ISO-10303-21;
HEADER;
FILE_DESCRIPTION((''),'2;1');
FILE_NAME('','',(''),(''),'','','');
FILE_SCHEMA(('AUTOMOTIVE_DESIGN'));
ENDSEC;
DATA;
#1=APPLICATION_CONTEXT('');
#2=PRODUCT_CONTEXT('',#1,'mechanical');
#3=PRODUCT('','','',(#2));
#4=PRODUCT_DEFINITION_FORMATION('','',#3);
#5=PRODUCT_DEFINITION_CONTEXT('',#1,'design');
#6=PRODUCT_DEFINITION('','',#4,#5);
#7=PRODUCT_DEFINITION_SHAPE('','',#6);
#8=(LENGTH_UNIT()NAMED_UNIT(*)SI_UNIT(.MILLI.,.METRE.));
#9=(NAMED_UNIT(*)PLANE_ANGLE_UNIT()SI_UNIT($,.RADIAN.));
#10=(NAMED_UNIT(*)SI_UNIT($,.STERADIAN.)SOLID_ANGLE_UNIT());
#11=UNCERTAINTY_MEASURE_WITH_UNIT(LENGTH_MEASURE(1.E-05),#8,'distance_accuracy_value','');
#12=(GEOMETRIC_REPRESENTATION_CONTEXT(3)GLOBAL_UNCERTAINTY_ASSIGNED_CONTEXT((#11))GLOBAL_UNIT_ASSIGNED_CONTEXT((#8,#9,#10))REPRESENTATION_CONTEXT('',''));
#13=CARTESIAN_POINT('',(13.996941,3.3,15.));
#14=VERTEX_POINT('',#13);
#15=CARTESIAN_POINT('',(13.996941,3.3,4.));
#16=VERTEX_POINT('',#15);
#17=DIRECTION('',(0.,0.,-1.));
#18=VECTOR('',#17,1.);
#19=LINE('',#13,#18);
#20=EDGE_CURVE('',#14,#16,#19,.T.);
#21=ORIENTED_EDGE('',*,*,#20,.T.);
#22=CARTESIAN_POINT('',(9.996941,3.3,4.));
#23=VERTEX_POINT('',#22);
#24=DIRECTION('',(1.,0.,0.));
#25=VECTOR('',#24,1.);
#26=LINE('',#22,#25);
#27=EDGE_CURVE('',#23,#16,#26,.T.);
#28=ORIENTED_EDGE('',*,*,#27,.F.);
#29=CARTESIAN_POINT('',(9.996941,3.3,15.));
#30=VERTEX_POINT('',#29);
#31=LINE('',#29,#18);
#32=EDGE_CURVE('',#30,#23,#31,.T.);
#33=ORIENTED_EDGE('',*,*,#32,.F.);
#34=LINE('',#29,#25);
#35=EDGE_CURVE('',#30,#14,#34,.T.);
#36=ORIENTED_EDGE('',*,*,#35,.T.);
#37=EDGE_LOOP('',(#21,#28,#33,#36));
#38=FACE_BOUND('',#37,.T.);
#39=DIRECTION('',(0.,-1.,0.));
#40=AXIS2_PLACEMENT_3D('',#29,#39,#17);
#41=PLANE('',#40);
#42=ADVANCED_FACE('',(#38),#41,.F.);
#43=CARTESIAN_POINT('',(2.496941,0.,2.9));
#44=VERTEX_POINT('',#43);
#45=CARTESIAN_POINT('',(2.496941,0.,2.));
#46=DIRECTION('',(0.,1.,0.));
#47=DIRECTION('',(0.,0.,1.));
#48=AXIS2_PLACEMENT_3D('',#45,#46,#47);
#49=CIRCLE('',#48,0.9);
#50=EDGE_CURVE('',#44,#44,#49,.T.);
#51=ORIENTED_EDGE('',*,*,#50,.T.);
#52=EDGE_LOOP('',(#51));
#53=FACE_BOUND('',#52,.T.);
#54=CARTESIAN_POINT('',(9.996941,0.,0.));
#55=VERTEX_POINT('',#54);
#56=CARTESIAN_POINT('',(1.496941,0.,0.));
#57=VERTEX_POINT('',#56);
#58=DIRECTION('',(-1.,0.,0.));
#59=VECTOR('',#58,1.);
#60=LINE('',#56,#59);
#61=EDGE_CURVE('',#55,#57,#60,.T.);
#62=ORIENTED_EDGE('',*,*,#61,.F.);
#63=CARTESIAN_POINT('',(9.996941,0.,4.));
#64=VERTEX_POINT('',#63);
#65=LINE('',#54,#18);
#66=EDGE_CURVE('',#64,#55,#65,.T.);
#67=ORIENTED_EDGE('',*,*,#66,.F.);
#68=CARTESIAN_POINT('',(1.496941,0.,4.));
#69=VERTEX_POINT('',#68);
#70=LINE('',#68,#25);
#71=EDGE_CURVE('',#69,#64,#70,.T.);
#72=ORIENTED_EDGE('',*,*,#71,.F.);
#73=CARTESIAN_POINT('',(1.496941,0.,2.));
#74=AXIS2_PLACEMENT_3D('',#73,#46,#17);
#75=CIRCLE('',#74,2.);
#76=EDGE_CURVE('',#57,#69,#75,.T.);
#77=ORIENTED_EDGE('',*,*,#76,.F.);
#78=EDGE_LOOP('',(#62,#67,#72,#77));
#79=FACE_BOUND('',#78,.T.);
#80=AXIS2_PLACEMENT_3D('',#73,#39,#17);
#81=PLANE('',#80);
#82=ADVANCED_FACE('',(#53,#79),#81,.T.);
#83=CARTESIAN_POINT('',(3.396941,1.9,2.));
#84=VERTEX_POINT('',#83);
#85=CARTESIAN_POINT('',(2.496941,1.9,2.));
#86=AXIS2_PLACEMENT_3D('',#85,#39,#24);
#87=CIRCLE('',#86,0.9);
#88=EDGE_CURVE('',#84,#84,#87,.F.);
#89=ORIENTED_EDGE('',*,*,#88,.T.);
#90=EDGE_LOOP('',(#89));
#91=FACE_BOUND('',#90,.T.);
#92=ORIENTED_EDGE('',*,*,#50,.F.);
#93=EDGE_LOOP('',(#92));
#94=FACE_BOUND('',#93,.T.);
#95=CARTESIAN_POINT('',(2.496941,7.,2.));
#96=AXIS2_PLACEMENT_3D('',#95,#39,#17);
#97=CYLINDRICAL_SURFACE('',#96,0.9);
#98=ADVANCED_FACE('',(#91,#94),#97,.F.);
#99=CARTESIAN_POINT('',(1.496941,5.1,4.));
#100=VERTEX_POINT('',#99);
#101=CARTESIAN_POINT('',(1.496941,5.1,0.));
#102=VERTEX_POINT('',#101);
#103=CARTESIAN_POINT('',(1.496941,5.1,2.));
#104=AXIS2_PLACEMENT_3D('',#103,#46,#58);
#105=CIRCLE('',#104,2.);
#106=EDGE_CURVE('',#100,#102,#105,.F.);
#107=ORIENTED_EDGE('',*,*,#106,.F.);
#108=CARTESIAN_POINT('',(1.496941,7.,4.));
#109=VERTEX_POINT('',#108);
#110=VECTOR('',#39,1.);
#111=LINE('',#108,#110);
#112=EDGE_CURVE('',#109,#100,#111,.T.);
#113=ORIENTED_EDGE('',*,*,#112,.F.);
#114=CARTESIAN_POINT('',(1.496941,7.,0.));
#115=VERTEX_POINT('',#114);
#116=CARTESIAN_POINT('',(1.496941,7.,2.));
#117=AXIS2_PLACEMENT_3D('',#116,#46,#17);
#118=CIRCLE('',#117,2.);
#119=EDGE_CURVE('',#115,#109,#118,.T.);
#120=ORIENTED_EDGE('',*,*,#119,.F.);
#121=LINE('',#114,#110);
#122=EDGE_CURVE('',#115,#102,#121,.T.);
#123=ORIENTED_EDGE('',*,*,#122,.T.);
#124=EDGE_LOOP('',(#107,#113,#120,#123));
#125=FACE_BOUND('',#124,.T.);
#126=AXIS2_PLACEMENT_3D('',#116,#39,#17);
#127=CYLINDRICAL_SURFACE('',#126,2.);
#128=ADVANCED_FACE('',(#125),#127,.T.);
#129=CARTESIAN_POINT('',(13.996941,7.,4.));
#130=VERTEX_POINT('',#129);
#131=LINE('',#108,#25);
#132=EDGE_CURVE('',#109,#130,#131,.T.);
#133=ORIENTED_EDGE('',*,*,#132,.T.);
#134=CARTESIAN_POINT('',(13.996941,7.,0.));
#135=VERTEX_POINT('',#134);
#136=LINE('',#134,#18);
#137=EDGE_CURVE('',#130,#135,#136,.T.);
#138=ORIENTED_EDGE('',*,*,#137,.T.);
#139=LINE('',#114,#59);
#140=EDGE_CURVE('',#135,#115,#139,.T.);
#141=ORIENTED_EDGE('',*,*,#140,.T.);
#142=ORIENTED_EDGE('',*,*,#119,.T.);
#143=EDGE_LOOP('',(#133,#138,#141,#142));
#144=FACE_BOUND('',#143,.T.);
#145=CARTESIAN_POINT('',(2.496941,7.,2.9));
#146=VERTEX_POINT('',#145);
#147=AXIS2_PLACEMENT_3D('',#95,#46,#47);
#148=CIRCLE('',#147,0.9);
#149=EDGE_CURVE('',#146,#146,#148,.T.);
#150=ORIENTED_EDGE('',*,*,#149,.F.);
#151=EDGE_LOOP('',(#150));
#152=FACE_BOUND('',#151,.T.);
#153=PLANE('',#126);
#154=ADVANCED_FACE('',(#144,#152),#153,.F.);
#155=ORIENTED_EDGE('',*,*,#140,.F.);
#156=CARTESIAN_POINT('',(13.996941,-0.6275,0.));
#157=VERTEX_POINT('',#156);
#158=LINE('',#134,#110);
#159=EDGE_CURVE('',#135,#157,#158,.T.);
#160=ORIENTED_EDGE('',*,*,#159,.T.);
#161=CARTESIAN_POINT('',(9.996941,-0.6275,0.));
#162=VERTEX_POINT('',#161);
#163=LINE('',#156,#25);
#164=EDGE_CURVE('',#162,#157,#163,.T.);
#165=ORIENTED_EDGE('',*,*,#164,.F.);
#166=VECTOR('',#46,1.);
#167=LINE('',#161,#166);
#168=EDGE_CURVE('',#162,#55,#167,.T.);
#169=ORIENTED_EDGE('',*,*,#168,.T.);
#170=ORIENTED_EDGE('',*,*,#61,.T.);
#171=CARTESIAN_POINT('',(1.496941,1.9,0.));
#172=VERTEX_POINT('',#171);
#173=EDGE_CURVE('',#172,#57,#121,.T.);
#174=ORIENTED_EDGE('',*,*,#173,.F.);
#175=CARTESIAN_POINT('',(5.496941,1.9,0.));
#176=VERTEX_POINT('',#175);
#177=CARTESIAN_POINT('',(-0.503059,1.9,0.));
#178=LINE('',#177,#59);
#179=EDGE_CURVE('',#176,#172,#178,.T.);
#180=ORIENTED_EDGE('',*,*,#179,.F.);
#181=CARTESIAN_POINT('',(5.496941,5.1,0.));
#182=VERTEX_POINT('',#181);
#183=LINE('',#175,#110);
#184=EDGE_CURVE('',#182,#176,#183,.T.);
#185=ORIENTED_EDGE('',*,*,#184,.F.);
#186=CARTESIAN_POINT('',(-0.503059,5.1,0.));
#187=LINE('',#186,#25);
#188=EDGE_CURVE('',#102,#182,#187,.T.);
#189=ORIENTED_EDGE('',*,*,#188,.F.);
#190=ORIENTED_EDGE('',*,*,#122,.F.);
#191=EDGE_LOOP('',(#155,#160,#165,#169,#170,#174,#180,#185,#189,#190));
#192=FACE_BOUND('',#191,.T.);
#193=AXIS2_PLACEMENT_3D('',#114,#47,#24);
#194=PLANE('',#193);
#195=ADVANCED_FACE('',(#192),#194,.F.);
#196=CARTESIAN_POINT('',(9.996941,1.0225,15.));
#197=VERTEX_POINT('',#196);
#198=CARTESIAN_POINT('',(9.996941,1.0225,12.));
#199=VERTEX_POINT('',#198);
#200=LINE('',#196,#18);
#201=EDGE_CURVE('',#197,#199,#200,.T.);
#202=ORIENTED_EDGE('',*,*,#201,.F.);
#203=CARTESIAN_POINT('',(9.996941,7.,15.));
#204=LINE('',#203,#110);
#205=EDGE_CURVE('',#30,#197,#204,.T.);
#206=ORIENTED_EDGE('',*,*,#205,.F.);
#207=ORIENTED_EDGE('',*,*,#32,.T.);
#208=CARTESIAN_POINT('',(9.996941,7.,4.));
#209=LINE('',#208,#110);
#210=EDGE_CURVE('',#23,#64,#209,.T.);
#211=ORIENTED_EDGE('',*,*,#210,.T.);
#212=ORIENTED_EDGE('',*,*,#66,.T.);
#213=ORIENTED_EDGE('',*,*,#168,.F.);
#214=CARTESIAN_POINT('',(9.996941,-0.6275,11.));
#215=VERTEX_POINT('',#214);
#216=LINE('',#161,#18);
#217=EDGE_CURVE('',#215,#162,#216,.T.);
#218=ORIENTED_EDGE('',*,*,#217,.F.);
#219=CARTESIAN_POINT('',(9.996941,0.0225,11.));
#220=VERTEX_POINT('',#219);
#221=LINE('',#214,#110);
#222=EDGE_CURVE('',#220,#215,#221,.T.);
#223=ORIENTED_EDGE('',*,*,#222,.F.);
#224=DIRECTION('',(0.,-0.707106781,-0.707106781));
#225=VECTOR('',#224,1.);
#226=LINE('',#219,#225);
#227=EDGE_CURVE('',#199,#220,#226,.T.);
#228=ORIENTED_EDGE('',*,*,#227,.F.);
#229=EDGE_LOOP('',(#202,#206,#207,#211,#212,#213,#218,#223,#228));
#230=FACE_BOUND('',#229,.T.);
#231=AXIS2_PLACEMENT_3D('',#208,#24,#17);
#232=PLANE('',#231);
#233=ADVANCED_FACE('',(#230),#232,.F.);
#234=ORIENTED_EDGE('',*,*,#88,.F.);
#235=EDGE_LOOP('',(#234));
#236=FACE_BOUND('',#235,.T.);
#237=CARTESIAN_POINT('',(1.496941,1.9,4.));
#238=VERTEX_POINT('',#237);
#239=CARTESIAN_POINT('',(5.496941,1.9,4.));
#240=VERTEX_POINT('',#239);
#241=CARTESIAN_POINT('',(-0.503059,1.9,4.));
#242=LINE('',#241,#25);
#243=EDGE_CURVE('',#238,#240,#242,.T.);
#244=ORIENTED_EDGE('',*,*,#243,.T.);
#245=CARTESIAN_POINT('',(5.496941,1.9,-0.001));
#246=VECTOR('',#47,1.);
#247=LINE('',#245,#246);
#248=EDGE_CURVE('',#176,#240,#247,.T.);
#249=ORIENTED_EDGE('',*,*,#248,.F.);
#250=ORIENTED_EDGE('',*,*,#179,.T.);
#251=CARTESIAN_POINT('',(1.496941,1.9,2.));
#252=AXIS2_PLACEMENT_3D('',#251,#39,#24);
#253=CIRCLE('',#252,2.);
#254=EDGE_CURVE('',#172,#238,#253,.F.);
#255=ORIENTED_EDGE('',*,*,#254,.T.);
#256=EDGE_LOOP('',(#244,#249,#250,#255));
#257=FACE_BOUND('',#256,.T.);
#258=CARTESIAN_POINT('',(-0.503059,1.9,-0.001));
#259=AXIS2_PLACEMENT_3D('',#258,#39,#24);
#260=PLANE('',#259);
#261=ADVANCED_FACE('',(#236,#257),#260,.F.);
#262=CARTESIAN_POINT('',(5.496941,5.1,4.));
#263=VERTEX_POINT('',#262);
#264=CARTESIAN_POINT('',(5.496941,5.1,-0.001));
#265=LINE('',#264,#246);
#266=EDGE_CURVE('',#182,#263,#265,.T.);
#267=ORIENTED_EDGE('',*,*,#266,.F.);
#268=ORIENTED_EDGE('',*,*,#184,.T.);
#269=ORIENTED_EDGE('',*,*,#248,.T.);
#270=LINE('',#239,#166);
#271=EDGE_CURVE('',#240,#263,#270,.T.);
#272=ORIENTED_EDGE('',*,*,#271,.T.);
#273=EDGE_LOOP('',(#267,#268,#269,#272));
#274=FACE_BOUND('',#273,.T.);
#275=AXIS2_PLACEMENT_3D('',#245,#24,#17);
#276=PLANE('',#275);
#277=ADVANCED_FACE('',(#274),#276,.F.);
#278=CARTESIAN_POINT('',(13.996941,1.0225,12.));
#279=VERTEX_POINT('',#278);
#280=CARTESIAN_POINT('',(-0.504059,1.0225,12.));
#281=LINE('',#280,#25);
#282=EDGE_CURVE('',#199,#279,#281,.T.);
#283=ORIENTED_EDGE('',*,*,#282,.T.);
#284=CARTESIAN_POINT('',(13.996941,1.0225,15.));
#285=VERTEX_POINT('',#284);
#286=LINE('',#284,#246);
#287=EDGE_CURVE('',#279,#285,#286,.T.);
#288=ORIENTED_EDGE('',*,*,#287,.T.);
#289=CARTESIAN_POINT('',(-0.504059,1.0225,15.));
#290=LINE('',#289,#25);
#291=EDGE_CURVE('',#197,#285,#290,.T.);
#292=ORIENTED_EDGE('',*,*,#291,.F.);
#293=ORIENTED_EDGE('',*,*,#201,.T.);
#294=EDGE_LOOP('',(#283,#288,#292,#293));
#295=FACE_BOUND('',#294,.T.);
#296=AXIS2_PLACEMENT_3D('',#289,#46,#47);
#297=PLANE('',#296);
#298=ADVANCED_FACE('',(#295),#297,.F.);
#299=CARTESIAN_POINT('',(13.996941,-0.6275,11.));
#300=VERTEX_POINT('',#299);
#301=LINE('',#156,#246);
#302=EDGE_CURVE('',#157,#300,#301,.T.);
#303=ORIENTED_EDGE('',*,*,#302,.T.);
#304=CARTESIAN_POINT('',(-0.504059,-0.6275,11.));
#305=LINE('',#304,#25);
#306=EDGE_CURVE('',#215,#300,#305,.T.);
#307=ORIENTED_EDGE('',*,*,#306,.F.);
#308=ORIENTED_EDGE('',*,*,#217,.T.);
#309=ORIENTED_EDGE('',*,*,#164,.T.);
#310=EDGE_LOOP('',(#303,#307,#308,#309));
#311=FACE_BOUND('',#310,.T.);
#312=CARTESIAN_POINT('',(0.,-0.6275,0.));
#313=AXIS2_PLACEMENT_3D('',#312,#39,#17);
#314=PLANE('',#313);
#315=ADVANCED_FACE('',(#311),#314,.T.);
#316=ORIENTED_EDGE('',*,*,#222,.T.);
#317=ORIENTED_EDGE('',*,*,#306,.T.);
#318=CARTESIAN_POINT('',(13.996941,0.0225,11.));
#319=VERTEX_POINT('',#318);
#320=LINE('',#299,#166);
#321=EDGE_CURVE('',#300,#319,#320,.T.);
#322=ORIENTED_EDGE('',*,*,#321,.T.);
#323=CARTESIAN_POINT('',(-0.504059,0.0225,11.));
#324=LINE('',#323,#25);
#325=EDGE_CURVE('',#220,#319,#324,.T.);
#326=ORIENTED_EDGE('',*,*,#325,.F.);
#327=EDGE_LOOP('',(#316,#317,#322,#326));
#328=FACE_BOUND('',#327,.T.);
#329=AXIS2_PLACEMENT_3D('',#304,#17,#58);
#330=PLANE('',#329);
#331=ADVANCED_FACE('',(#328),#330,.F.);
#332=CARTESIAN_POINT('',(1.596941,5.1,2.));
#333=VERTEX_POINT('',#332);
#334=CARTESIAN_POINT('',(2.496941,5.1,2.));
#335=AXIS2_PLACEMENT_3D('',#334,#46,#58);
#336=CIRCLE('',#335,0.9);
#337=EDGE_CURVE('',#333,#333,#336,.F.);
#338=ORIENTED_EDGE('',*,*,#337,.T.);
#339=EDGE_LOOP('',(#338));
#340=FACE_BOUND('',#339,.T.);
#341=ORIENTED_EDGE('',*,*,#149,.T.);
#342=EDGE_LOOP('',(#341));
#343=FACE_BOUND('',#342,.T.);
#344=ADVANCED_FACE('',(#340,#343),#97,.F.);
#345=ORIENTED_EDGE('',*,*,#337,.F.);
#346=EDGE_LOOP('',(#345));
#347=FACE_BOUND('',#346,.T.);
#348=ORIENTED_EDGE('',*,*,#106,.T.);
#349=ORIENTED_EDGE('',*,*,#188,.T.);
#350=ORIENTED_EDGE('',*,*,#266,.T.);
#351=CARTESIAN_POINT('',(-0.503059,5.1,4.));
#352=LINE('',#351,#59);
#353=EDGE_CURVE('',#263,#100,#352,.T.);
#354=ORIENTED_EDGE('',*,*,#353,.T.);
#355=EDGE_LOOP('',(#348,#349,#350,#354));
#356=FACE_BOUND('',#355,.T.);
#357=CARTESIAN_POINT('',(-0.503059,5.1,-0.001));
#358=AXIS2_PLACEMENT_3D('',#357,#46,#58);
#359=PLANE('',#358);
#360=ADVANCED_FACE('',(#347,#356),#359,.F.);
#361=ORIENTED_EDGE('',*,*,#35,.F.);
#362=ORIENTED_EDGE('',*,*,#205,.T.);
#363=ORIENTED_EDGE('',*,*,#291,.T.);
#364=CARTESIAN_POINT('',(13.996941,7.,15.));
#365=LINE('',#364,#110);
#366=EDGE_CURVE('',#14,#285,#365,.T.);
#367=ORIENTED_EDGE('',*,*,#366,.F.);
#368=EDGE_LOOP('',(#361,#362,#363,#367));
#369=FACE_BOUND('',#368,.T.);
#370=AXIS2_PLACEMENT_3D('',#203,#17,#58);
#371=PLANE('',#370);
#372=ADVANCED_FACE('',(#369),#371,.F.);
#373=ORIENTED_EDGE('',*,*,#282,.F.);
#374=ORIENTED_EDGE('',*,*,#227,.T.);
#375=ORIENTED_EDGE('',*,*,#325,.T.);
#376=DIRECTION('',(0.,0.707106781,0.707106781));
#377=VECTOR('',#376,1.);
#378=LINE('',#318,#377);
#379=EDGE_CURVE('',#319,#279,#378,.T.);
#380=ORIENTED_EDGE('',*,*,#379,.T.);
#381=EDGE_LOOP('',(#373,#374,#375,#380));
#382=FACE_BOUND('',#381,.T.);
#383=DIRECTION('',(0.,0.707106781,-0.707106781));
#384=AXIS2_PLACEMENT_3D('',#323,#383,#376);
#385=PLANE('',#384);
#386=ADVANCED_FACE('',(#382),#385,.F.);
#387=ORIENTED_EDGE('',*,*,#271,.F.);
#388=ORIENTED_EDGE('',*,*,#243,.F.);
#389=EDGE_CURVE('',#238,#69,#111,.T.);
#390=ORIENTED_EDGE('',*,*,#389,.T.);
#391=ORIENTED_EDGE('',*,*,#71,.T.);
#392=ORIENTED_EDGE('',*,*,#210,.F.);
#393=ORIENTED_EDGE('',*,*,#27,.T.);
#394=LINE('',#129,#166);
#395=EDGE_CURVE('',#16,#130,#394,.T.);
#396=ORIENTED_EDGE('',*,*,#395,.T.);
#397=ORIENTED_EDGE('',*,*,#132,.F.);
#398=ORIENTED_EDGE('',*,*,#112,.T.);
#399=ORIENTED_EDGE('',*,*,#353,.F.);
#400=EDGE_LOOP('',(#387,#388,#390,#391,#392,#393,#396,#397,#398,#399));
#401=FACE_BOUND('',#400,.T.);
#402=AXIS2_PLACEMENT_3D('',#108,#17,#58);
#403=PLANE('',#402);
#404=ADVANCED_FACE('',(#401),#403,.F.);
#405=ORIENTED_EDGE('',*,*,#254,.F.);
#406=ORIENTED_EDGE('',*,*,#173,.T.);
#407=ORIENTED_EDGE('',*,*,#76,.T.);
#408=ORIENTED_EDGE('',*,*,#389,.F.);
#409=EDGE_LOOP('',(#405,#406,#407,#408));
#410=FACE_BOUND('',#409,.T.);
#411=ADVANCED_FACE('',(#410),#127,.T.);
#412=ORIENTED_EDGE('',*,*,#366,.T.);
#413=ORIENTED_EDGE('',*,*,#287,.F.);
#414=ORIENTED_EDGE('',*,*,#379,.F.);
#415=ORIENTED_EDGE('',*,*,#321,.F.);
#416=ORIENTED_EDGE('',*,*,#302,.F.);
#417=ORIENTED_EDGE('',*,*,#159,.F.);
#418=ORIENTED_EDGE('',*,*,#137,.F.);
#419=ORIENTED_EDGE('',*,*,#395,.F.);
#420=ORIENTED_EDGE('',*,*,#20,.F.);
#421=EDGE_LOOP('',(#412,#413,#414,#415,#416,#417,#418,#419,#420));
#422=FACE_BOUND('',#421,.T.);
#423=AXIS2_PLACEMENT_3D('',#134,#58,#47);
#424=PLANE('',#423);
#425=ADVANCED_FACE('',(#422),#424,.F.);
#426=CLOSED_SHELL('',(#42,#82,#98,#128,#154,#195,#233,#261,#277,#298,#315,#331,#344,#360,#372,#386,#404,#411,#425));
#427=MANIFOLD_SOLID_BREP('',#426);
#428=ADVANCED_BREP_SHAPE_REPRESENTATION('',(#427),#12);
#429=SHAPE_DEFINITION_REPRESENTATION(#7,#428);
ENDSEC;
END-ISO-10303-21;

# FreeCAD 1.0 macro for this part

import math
import FreeCAD as App
import Part
import Sketcher

V = App.Vector
Q = App.Units.Quantity


def add_polygon(sketch, points):
    """Adds a closed chain of lines whose ends are joined by coincident constraints."""
    first, n = sketch.GeometryCount, len(points)
    for a, b in zip(points, points[1:] + points[:1]):
        sketch.addGeometry(Part.LineSegment(App.Vector(*a, 0), App.Vector(*b, 0)), False)
    for i in range(n):
        sketch.addConstraint(Sketcher.Constraint("Coincident", first + i, 2, first + (i + 1) % n, 1))

doc = App.newDocument("Part")
body = doc.addObject("PartDesign::Body", "Body")

sketch1 = body.newObject("Sketcher::SketchObject", "Sketch")
sketch1.AttachmentSupport = (doc.getObject("XZ_Plane"), [""])
sketch1.MapMode = "FlatFace"
sketch1.addGeometry([
    Part.LineSegment(V(13.996941, 0, 0), V(1.496941, 0, 0)),
    Part.ArcOfCircle(Part.Circle(V(1.496941, 2, 0), V(0, 0, 1), 2), math.radians(90), math.radians(270)),
    Part.LineSegment(V(1.496941, 4, 0), V(9.996941, 4, 0)),
    Part.LineSegment(V(9.996941, 4, 0), V(9.996941, 15, 0)),
    Part.LineSegment(V(9.996941, 15, 0), V(13.996941, 15, 0)),
    Part.LineSegment(V(13.996941, 15, 0), V(13.996941, 0, 0)),
    Part.Circle(V(2.496941, 2, 0), V(0, 0, 1), 0.9),
], False)
sketch1.addConstraint([
    Sketcher.Constraint("Tangent", 0, 2, 1, 2),
    Sketcher.Constraint("Tangent", 1, 1, 2, 1),
    Sketcher.Constraint("Coincident", 2, 2, 3, 1),
    Sketcher.Constraint("Coincident", 3, 2, 4, 1),
    Sketcher.Constraint("Coincident", 4, 2, 5, 1),
    Sketcher.Constraint("Coincident", 5, 2, 0, 1),
    Sketcher.Constraint("Horizontal", 0),
    Sketcher.Constraint("Horizontal", 2),
    Sketcher.Constraint("Vertical", 3),
    Sketcher.Constraint("Horizontal", 4),
    Sketcher.Constraint("Vertical", 5),
    Sketcher.Constraint("PointOnObject", 0, 2, -1),
    Sketcher.Constraint("Horizontal", 1, 3, 6, 3),
    Sketcher.Constraint("Radius", 1, Q("2 mm")),
    Sketcher.Constraint("Diameter", 6, Q("1.8 mm")),
    Sketcher.Constraint("DistanceX", 4, 1, 4, 2, Q("4 mm")),
    Sketcher.Constraint("DistanceY", 3, 1, 3, 2, Q("11 mm")),
    Sketcher.Constraint("DistanceX", 0, 2, 0, 1, Q("12.5 mm")),
    Sketcher.Constraint("DistanceX", 1, 3, 6, 3, Q("1 mm")),
    Sketcher.Constraint("DistanceX", -1, 1, 1, 3, Q("1.496941 mm")),
])
pad1 = body.newObject("PartDesign::Pad", "Pad")
pad1.Profile = sketch1
pad1.Length = 7
pad1.Reversed = True

sketch2 = body.newObject("Sketcher::SketchObject", "Sketch001")
sketch2.AttachmentSupport = (doc.getObject("XY_Plane"), [""])
sketch2.MapMode = "FlatFace"
sketch2.AttachmentOffset = App.Placement(V(0, 0, 4), App.Rotation())
add_polygon(sketch2, [(-0.503059, 5.1), (-0.503059, 1.9), (5.496941, 1.9), (5.496941, 5.1)])
sketch2.addConstraint([
    Sketcher.Constraint("Vertical", 0),
    Sketcher.Constraint("Horizontal", 1),
    Sketcher.Constraint("Vertical", 2),
    Sketcher.Constraint("Horizontal", 3),
    Sketcher.Constraint("DistanceX", 1, 1, 1, 2, Q("6 mm")),
    Sketcher.Constraint("DistanceY", 0, 2, 0, 1, Q("3.2 mm")),
    Sketcher.Constraint("DistanceY", -1, 1, 0, 2, Q("1.9 mm")),
    Sketcher.Constraint("DistanceX", 0, 2, -1, 1, Q("0.503059 mm")),
])
pocket1 = body.newObject("PartDesign::Pocket", "Pocket")
pocket1.Profile = sketch2
pocket1.Type = "UpToFirst"

sketch3 = body.newObject("Sketcher::SketchObject", "Sketch002")
sketch3.AttachmentSupport = (doc.getObject("YZ_Plane"), [""])
sketch3.MapMode = "FlatFace"
sketch3.AttachmentOffset = App.Placement(V(0, 0, 13.996941), App.Rotation())
add_polygon(sketch3, [(7, 15), (3.3, 15), (3.3, 4), (7, 4)])
sketch3.addConstraint([
    Sketcher.Constraint("Horizontal", 0),
    Sketcher.Constraint("Vertical", 1),
    Sketcher.Constraint("Horizontal", 2),
    Sketcher.Constraint("Vertical", 3),
    Sketcher.Constraint("DistanceY", 1, 2, 1, 1, Q("11 mm")),
    Sketcher.Constraint("DistanceX", 0, 2, 0, 1, Q("3.7 mm")),
    Sketcher.Constraint("DistanceY", -1, 1, 0, 2, Q("15 mm")),
    Sketcher.Constraint("DistanceX", -1, 1, 2, 2, Q("7 mm")),
])
pocket2 = body.newObject("PartDesign::Pocket", "Pocket001")
pocket2.Profile = sketch3
pocket2.Length = 4

sketch4 = body.newObject("Sketcher::SketchObject", "Sketch003")
sketch4.AttachmentSupport = (doc.getObject("XZ_Plane"), [""])
sketch4.MapMode = "FlatFace"
add_polygon(sketch4, [(9.996941, 15), (9.996941, 0), (13.996941, 0), (13.996941, 15)])
sketch4.addConstraint([
    Sketcher.Constraint("Vertical", 0),
    Sketcher.Constraint("Horizontal", 1),
    Sketcher.Constraint("Vertical", 2),
    Sketcher.Constraint("Horizontal", 3),
    Sketcher.Constraint("PointOnObject", 0, 2, -1),
    Sketcher.Constraint("DistanceX", 1, 1, 1, 2, Q("4 mm")),
    Sketcher.Constraint("DistanceY", 0, 2, 0, 1, Q("15 mm")),
    Sketcher.Constraint("DistanceX", -1, 1, 0, 2, Q("9.996941 mm")),
])
pad2 = body.newObject("PartDesign::Pad", "Pad001")
pad2.Profile = sketch4
pad2.Length = 0.6275

sketch5 = body.newObject("Sketcher::SketchObject", "Sketch004")
sketch5.AttachmentSupport = (doc.getObject("YZ_Plane"), [""])
sketch5.MapMode = "FlatFace"
sketch5.AttachmentOffset = App.Placement(V(0, 0, 13.996941), App.Rotation())
add_polygon(sketch5, [(-0.6275, 15), (-0.6275, 11), (0.0225, 11), (1.0225, 12), (1.0225, 15)])
sketch5.addConstraint([
    Sketcher.Constraint("Vertical", 0),
    Sketcher.Constraint("Horizontal", 1),
    Sketcher.Constraint("Vertical", 3),
    Sketcher.Constraint("Horizontal", 4),
    Sketcher.Constraint("DistanceY", 0, 2, 0, 1, Q("4 mm")),
    Sketcher.Constraint("DistanceY", 3, 1, 3, 2, Q("3 mm")),
    Sketcher.Constraint("Angle", 2, Q("45 deg")),
    Sketcher.Constraint("DistanceY", -1, 1, 0, 2, Q("11 mm")),
    Sketcher.Constraint("DistanceX", 1, 1, 1, 2, Q("0.65 mm")),
    Sketcher.Constraint("DistanceX", 0, 2, -1, 1, Q("0.6275 mm")),
])
pocket3 = body.newObject("PartDesign::Pocket", "Pocket002")
pocket3.Profile = sketch5
pocket3.Type = "UpToFirst"

doc.recompute()
